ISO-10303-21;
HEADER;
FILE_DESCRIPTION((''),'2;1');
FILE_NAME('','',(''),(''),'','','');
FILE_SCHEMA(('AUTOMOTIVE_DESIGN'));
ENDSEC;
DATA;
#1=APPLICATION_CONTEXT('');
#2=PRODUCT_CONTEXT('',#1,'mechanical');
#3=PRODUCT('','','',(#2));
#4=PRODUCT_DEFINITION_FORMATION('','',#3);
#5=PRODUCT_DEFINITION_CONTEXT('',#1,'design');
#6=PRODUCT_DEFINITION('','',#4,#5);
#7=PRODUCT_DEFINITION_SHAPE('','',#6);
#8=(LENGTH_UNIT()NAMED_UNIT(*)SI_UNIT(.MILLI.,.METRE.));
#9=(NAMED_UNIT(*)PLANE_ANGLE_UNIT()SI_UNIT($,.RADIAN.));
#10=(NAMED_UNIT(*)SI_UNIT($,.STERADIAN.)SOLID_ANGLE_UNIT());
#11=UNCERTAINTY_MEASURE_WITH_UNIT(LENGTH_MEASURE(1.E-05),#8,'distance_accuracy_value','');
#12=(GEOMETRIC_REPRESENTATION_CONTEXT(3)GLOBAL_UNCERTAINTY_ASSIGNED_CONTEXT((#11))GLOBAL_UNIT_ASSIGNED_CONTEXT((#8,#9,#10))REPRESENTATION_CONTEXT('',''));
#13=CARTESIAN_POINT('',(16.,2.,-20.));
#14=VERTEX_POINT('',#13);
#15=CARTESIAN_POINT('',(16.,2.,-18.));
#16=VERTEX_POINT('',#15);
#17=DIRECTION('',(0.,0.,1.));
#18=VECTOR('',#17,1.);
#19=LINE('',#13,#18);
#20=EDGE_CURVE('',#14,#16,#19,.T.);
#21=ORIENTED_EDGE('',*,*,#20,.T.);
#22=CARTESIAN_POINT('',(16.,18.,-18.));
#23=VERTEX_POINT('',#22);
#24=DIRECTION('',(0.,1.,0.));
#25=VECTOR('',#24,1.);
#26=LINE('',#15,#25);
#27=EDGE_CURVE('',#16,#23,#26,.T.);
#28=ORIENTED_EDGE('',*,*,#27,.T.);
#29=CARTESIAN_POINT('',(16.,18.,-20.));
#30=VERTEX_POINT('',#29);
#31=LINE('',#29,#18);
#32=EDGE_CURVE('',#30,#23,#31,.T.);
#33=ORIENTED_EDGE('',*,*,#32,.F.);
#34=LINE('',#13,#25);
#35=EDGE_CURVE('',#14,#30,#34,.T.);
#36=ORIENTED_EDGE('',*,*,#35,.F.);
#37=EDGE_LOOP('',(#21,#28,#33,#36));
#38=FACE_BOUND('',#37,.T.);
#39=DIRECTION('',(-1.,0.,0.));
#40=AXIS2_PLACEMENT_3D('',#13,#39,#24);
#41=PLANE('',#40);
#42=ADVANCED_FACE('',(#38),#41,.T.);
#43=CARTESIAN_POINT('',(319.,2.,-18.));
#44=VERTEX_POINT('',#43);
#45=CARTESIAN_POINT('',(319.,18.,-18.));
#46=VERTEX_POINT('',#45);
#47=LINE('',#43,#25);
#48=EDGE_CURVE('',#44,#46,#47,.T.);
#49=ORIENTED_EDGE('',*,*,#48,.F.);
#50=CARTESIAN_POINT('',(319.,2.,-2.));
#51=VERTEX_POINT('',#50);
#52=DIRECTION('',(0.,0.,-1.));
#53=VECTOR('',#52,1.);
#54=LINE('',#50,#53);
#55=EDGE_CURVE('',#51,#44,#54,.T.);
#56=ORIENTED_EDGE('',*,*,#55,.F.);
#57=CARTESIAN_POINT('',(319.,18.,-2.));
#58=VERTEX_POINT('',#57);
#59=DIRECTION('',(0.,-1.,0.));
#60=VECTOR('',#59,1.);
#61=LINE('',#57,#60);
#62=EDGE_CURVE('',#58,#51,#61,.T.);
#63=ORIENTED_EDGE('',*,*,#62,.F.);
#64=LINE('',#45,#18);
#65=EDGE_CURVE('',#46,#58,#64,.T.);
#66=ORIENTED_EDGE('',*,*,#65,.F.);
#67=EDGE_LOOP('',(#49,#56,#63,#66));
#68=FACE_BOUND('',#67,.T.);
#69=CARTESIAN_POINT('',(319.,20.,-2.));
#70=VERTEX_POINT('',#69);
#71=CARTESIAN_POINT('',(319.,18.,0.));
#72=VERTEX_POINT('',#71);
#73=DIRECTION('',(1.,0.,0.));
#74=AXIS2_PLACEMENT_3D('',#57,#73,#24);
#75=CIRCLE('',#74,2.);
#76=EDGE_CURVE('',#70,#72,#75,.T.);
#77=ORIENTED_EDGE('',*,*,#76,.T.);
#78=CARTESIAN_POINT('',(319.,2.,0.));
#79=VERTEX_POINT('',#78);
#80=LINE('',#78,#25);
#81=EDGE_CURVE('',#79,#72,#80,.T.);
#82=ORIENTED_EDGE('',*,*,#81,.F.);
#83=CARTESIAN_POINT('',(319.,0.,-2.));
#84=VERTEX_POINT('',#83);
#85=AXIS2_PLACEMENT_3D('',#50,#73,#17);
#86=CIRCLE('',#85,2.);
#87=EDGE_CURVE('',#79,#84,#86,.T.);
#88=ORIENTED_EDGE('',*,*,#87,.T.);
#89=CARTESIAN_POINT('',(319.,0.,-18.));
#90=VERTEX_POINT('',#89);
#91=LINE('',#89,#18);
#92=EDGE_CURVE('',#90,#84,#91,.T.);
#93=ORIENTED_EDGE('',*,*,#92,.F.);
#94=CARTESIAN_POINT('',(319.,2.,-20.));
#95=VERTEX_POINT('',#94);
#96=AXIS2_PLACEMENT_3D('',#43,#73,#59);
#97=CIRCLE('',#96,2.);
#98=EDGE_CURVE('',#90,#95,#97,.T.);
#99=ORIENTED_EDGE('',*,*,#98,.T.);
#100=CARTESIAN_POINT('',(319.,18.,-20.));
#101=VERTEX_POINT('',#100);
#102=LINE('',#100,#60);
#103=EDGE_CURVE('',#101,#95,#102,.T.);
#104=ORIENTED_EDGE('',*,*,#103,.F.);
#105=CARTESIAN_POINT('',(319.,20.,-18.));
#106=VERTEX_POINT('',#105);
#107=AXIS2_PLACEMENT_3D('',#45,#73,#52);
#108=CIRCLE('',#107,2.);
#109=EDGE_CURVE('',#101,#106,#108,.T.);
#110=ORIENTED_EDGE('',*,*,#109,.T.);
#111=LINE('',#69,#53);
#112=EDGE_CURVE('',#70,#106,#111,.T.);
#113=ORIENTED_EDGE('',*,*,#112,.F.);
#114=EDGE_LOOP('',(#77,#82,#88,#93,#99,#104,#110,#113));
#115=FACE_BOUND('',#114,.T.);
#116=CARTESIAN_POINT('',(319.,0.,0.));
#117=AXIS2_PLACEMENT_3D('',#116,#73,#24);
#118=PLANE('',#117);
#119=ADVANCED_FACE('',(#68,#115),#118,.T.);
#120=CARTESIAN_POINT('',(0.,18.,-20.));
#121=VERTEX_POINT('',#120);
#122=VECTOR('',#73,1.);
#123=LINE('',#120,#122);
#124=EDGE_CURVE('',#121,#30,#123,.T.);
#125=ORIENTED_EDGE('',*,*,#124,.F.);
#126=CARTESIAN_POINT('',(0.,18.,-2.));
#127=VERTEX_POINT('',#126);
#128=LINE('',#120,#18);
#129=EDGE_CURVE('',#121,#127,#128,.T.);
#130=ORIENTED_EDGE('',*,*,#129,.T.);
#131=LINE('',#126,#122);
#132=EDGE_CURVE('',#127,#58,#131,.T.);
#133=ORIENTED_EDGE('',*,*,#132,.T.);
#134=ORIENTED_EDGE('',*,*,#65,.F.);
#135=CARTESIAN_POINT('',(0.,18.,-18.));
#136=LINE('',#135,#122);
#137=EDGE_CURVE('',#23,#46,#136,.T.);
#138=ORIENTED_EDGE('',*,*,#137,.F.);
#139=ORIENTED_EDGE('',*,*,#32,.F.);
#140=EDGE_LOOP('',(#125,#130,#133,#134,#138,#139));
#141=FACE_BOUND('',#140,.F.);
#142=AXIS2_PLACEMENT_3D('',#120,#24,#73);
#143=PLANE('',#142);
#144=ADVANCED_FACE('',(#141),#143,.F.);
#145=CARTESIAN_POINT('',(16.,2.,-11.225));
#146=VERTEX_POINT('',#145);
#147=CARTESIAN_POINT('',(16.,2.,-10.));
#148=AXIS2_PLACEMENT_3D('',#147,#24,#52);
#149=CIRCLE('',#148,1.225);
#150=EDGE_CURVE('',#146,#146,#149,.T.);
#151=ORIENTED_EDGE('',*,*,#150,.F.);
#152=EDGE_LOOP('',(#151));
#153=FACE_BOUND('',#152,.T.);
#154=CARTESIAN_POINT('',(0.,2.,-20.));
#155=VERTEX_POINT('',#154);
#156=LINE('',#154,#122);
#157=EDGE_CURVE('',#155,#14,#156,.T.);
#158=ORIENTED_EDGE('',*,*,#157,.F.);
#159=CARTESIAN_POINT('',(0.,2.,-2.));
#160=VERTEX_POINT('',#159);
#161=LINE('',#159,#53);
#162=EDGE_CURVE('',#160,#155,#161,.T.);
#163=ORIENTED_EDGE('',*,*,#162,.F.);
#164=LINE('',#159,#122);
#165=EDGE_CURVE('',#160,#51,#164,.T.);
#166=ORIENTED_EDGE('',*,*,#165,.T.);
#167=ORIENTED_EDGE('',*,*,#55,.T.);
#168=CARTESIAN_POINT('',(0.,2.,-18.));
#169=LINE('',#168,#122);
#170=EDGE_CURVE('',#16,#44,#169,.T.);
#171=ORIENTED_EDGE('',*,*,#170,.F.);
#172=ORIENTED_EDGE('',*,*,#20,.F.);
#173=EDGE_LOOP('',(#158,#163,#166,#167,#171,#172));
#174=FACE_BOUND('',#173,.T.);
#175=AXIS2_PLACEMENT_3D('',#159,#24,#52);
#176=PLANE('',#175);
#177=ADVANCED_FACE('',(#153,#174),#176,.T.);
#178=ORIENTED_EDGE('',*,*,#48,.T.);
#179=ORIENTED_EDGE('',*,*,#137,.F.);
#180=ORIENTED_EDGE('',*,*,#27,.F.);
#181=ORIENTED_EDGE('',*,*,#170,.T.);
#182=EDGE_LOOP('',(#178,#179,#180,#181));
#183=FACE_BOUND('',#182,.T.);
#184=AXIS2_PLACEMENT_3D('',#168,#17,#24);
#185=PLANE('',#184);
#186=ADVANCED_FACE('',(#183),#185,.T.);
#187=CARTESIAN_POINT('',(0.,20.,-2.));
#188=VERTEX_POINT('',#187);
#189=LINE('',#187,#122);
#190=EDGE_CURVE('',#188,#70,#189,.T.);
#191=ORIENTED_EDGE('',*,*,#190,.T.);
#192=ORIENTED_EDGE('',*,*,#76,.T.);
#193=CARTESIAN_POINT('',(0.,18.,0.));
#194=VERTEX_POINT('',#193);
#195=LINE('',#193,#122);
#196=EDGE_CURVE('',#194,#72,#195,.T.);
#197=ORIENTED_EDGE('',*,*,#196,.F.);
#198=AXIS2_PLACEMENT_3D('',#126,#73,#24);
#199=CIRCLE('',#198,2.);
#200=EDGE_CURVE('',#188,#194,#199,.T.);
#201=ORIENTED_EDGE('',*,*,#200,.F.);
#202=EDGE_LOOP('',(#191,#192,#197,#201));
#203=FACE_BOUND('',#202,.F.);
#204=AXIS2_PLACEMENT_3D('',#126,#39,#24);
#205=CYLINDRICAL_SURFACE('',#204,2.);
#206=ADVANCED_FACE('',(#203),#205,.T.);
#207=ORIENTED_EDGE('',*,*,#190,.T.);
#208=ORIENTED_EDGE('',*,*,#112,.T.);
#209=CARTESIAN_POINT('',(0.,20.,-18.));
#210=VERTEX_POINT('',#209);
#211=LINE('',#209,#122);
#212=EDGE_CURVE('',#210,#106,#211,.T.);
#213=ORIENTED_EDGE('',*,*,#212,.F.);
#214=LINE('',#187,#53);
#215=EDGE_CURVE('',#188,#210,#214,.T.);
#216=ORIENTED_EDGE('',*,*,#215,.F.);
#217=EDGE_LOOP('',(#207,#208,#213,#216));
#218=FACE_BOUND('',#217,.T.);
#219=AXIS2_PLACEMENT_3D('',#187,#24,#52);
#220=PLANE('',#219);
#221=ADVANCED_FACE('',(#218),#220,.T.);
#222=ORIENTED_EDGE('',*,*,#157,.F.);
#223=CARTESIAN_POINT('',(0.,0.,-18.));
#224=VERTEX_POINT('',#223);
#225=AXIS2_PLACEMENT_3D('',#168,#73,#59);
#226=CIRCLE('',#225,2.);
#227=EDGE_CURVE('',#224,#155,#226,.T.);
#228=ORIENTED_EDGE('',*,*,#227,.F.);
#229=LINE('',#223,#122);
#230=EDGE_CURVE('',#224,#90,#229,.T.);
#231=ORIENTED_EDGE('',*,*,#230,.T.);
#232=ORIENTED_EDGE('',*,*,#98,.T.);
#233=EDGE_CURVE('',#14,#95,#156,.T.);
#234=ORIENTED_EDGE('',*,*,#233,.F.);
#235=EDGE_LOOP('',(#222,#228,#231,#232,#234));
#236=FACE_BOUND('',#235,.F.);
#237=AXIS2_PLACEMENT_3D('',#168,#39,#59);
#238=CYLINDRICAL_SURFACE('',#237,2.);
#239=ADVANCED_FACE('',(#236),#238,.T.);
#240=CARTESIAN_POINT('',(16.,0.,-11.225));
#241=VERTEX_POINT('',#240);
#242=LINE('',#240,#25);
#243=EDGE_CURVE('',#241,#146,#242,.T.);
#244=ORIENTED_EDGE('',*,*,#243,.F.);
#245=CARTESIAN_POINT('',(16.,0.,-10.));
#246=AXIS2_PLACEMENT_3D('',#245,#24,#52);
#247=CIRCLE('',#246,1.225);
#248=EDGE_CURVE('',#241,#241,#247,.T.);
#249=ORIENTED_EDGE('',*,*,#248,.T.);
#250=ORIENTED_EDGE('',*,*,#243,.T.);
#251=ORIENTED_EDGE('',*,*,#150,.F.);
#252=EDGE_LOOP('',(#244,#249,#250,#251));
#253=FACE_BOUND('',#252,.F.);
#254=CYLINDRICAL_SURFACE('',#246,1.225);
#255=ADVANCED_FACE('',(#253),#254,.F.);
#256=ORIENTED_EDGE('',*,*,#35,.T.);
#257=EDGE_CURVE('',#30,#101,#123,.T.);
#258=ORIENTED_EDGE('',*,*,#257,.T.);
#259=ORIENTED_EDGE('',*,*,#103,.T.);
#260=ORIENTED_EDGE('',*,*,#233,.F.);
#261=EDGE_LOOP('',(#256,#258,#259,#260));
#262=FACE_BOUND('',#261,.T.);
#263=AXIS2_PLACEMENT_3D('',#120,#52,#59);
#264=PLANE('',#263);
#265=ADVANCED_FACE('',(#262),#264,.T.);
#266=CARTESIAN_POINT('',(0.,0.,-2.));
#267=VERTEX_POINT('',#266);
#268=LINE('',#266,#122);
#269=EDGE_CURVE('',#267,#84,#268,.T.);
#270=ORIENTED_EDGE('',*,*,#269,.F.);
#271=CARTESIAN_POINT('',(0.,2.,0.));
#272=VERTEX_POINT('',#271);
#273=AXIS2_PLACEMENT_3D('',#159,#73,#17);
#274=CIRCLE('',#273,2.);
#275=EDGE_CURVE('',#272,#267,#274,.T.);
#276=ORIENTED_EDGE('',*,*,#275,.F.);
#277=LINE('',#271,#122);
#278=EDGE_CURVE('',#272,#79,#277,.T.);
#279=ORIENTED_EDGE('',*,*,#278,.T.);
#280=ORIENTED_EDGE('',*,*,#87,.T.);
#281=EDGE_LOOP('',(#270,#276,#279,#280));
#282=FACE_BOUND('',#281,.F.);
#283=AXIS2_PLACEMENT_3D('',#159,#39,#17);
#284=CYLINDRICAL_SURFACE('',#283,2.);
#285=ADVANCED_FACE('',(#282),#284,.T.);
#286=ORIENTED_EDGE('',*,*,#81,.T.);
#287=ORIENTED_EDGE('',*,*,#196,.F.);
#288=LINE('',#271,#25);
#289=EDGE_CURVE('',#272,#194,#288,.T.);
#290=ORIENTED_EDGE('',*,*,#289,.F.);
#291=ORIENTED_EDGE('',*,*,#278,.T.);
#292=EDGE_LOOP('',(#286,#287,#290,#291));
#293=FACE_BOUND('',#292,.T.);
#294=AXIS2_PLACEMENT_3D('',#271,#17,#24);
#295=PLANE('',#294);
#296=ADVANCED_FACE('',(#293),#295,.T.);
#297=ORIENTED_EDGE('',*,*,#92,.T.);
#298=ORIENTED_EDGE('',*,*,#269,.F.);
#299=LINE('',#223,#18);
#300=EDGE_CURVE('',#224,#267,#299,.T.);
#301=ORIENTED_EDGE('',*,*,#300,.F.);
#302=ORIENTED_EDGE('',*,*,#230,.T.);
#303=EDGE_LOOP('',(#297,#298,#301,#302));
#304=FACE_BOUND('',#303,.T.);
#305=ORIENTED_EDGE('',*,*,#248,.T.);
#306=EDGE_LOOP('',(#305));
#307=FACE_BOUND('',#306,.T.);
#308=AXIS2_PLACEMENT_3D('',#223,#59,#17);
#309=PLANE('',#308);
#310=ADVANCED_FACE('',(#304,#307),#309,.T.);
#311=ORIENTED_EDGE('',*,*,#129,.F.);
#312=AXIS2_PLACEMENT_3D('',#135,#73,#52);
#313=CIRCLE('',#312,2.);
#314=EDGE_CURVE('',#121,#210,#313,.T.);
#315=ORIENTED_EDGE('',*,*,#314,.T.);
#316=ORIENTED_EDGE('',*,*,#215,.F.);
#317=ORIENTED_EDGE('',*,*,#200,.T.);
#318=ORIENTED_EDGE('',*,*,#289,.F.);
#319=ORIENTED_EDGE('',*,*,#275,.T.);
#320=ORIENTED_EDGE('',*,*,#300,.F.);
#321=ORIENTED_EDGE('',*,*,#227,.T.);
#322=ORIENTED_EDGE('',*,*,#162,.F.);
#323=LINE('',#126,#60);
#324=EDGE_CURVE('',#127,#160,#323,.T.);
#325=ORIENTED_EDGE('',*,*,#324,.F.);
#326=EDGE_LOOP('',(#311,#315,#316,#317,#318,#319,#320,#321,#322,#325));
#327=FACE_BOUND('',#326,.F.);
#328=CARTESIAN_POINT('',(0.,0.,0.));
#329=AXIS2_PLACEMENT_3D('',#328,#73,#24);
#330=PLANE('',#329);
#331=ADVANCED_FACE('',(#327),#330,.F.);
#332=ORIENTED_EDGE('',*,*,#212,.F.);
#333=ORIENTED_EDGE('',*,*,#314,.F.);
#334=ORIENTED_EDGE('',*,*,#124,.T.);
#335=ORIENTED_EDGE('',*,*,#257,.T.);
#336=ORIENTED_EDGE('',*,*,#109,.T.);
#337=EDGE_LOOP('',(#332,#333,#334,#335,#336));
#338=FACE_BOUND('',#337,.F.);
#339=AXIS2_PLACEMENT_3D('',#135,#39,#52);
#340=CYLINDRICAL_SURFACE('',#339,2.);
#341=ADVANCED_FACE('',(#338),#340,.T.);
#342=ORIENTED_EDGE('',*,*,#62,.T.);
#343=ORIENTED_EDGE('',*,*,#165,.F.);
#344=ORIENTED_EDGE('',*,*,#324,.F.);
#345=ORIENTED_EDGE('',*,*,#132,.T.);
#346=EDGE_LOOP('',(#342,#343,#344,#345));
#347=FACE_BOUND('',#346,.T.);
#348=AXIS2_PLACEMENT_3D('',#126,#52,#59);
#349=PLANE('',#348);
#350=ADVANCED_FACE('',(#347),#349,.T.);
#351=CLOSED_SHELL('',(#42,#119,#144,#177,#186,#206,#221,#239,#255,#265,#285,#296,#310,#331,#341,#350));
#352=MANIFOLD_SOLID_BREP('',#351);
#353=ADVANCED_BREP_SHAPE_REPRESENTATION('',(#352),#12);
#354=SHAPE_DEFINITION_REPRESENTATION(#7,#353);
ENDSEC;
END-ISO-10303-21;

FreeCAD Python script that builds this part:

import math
import FreeCAD as App
import Part
import Sketcher


def add_polygon(sketch, points):
    """Adds a closed chain of lines whose ends are joined by coincident constraints."""
    first, n = sketch.GeometryCount, len(points)
    for a, b in zip(points, points[1:] + points[:1]):
        sketch.addGeometry(Part.LineSegment(App.Vector(*a, 0), App.Vector(*b, 0)), False)
    for i in range(n):
        sketch.addConstraint(Sketcher.Constraint("Coincident", first + i, 2, first + (i + 1) % n, 1))

doc = App.newDocument("Part")
body = doc.addObject("PartDesign::Body", "Body")

# Sketch on YZ plane
sketch1 = body.newObject("Sketcher::SketchObject", "Sketch")
sketch1.AttachmentSupport = (doc.getObject("YZ_Plane"), [""])
sketch1.MapMode = "FlatFace"
sketch1.addGeometry(Part.LineSegment(App.Vector(18, 0, 0), App.Vector(2, 0, 0)), False)  # 0
sketch1.addGeometry(Part.ArcOfCircle(Part.Circle(App.Vector(2, -2, 0), App.Vector(0, 0, 1), 2), math.radians(90), math.radians(180)), False)  # 1
sketch1.addGeometry(Part.LineSegment(App.Vector(0, -2, 0), App.Vector(0, -18, 0)), False)  # 2
sketch1.addGeometry(Part.ArcOfCircle(Part.Circle(App.Vector(2, -18, 0), App.Vector(0, 0, 1), 2), math.radians(180), math.radians(270)), False)  # 3
sketch1.addGeometry(Part.LineSegment(App.Vector(2, -20, 0), App.Vector(18, -20, 0)), False)  # 4
sketch1.addGeometry(Part.ArcOfCircle(Part.Circle(App.Vector(18, -18, 0), App.Vector(0, 0, 1), 2), math.radians(-90), math.radians(0)), False)  # 5
sketch1.addGeometry(Part.LineSegment(App.Vector(20, -18, 0), App.Vector(20, -2, 0)), False)  # 6
sketch1.addGeometry(Part.ArcOfCircle(Part.Circle(App.Vector(18, -2, 0), App.Vector(0, 0, 1), 2), math.radians(0), math.radians(90)), False)  # 7
add_polygon(sketch1, [(18, -2), (18, -18), (2, -18), (2, -2)])  # lines 8-11
sketch1.addConstraint([
    Sketcher.Constraint("Tangent", 0, 2, 1, 1),
    Sketcher.Constraint("Tangent", 1, 2, 2, 1),
    Sketcher.Constraint("Tangent", 2, 2, 3, 1),
    Sketcher.Constraint("Tangent", 3, 2, 4, 1),
    Sketcher.Constraint("Tangent", 4, 2, 5, 1),
    Sketcher.Constraint("Tangent", 5, 2, 6, 1),
    Sketcher.Constraint("Tangent", 6, 2, 7, 1),
    Sketcher.Constraint("Tangent", 7, 2, 0, 1),
    Sketcher.Constraint("Horizontal", 0),
    Sketcher.Constraint("Vertical", 2),
    Sketcher.Constraint("Horizontal", 4),
    Sketcher.Constraint("Vertical", 6),
    Sketcher.Constraint("Vertical", 8),
    Sketcher.Constraint("Horizontal", 9),
    Sketcher.Constraint("Vertical", 10),
    Sketcher.Constraint("Horizontal", 11),
    Sketcher.Constraint("Coincident", 8, 2, 5, 3),
    Sketcher.Constraint("Coincident", 9, 2, 3, 3),
    Sketcher.Constraint("Coincident", 10, 2, 1, 3),
    Sketcher.Constraint("Equal", 5, 7),
    Sketcher.Constraint("PointOnObject", 0, 2, -1),
    Sketcher.Constraint("PointOnObject", 1, 2, -2),
    Sketcher.Constraint("Equal", 11, 2),
    Sketcher.Constraint("Radius", 1, 2.0),
    Sketcher.Constraint("DistanceY", 3, 2, -1, 1, 20.0),
])
pad1 = body.newObject("PartDesign::Pad", "Pad")
pad1.Profile = sketch1
pad1.Length = 319

# Sketch on XZ plane
sketch2 = body.newObject("Sketcher::SketchObject", "Sketch001")
sketch2.AttachmentSupport = (doc.getObject("XZ_Plane"), [""])
sketch2.MapMode = "FlatFace"
sketch2.addGeometry(Part.Circle(App.Vector(16, -10, 0), App.Vector(0, 0, 1), 1.2), False)
sketch2.addConstraint([
    Sketcher.Constraint("Diameter", 0, 2.45),
    Sketcher.Constraint("DistanceX", -1, 1, 0, 3, 16.0),
    Sketcher.Constraint("DistanceY", 0, 3, -1, 1, 10.0),
])
doc.recompute()
hole = body.newObject("PartDesign::Hole", "Hole")
hole.Profile = sketch2
hole.ThreadType = "None"
hole.Diameter = 2.45
hole.DepthType = "Dimension"
hole.Depth = 2
hole.DrillPoint = "Flat"

# Sketch on XY plane
sketch3 = body.newObject("Sketcher::SketchObject", "Sketch002")
sketch3.AttachmentSupport = (doc.getObject("XY_Plane"), [""])
sketch3.MapMode = "FlatFace"
sketch3.AttachmentOffset = App.Placement(App.Vector(0, 0, -20), App.Rotation())
add_polygon(sketch3, [(16, 2), (0, 2), (0, 18), (16, 18)])  # lines 0-3
sketch3.addConstraint([
    Sketcher.Constraint("Horizontal", 0),
    Sketcher.Constraint("Vertical", 1),
    Sketcher.Constraint("Horizontal", 2),
    Sketcher.Constraint("Vertical", 3),
    Sketcher.Constraint("PointOnObject", 0, 2, -2),
    Sketcher.Constraint("Equal", 2, 1),
    Sketcher.Constraint("DistanceX", 0, 2, 0, 1, 16.0),
    Sketcher.Constraint("DistanceY", -1, 1, 0, 2, 2.0),
])
pocket1 = body.newObject("PartDesign::Pocket", "Pocket")
pocket1.Profile = sketch3
pocket1.Length = 2
pocket1.Reversed = True

doc.recompute()
